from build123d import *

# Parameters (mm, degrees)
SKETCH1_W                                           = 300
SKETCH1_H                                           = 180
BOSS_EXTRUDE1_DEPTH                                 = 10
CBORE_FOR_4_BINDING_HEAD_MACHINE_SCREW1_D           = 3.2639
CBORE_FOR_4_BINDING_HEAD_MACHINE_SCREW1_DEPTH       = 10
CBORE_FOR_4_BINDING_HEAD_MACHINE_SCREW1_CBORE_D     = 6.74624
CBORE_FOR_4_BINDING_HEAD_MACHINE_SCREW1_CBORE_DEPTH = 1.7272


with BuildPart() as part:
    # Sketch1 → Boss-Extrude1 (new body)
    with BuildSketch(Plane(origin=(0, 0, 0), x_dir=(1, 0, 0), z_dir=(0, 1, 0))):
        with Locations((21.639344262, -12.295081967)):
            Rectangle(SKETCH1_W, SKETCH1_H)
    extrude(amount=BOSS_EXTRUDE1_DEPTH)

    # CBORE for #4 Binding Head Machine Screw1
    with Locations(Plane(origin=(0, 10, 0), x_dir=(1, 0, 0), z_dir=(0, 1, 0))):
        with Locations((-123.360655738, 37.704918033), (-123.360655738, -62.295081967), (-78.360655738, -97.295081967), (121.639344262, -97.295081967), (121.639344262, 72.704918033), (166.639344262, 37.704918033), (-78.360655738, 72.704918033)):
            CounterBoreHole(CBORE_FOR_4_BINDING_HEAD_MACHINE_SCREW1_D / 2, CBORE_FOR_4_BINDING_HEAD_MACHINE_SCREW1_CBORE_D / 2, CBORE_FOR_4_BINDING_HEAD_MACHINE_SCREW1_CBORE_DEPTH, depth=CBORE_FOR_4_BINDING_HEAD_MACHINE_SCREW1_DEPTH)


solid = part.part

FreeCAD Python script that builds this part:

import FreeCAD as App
import Part
import Sketcher
from FreeCAD import Vector
Q = App.Units.Quantity

doc = App.newDocument("Part")
body = doc.addObject("PartDesign::Body", "Body")

# Sketch on XZ plane
sketch1 = body.newObject("Sketcher::SketchObject", "Sketch")
sketch1.AttachmentSupport = (doc.getObject("XZ_Plane"), [""])
sketch1.MapMode = "FlatFace"
sketch1.addGeometry([
    Part.LineSegment(Vector(-128, -78, 0), Vector(-128, 102, 0)),
    Part.LineSegment(Vector(-128, 102, 0), Vector(172, 102, 0)),
    Part.LineSegment(Vector(172, 102, 0), Vector(172, -78, 0)),
    Part.LineSegment(Vector(172, -78, 0), Vector(-128, -78, 0)),
], False)
sketch1.addConstraint([
    Sketcher.Constraint("Coincident", 0, 2, 1, 1),
    Sketcher.Constraint("Coincident", 1, 2, 2, 1),
    Sketcher.Constraint("Coincident", 2, 2, 3, 1),
    Sketcher.Constraint("Coincident", 3, 2, 0, 1),
    Sketcher.Constraint("Vertical", 0),
    Sketcher.Constraint("Horizontal", 1),
    Sketcher.Constraint("Vertical", 2),
    Sketcher.Constraint("Horizontal", 3),
    Sketcher.Constraint("DistanceX", 1, 1, 1, 2, Q("300 mm")),
    Sketcher.Constraint("DistanceY", 0, 1, 0, 2, Q("180 mm")),
    Sketcher.Constraint("DistanceY", -1, 1, 0, 2, Q("102.295082 mm")),
    Sketcher.Constraint("DistanceX", 0, 2, -1, 1, Q("128.360656 mm")),
])
pad1 = body.newObject("PartDesign::Pad", "Pad")
pad1.Profile = sketch1
pad1.Length = 10
pad1.Reversed = True

# Sketch on XZ plane
sketch2 = body.newObject("Sketcher::SketchObject", "Sketch001")
sketch2.AttachmentSupport = (doc.getObject("XZ_Plane"), [""])
sketch2.MapMode = "FlatFace"
sketch2.AttachmentOffset = App.Placement(Vector(0, 0, -10), App.Rotation())
sketch2.addGeometry([
    Part.Circle(Vector(-123.4, -37.7, 0), Vector(0, 0, 1), 1.6),  # 0
    Part.Circle(Vector(-123.4, 62.3, 0), Vector(0, 0, 1), 1.6),  # 1
    Part.Circle(Vector(-78.4, 97.3, 0), Vector(0, 0, 1), 1.6),  # 2
    Part.Circle(Vector(121.6, 97.3, 0), Vector(0, 0, 1), 1.6),  # 3
    Part.Circle(Vector(121.6, -72.7, 0), Vector(0, 0, 1), 1.6),  # 4
    Part.Circle(Vector(166.6, -37.7, 0), Vector(0, 0, 1), 1.6),  # 5
    Part.Circle(Vector(-78.4, -72.7, 0), Vector(0, 0, 1), 1.6),  # 6
], False)
sketch2.addConstraint([
    Sketcher.Constraint("Equal", 0, 1),
    Sketcher.Constraint("Equal", 1, 2),
    Sketcher.Constraint("Equal", 2, 3),
    Sketcher.Constraint("Equal", 3, 4),
    Sketcher.Constraint("Equal", 4, 5),
    Sketcher.Constraint("Equal", 5, 6),
    Sketcher.Constraint("Horizontal", 2, 3, 3, 3),
    Sketcher.Constraint("Horizontal", 0, 3, 5, 3),
    Sketcher.Constraint("Horizontal", 4, 3, 6, 3),
    Sketcher.Constraint("Vertical", 0, 3, 1, 3),
    Sketcher.Constraint("Vertical", 3, 3, 4, 3),
    Sketcher.Constraint("Vertical", 2, 3, 6, 3),
    Sketcher.Constraint("DistanceY", 0, 3, 1, 3, Q("100 mm")),
    Sketcher.Constraint("DistanceX", 1, 3, 2, 3, Q("45 mm")),
    Sketcher.Constraint("DistanceY", 1, 3, 2, 3, Q("35 mm")),
    Sketcher.Constraint("DistanceX", 2, 3, 3, 3, Q("200 mm")),
    Sketcher.Constraint("DistanceY", 4, 3, 3, 3, Q("170 mm")),
    Sketcher.Constraint("DistanceX", 4, 3, 5, 3, Q("45 mm")),
    Sketcher.Constraint("Diameter", 0, Q("3.2639 mm")),
    Sketcher.Constraint("DistanceY", 0, 3, -1, 1, Q("37.704918 mm")),
    Sketcher.Constraint("DistanceX", 0, 3, -1, 1, Q("123.360656 mm")),
])
doc.recompute()
hole = body.newObject("PartDesign::Hole", "Hole")
hole.Profile = sketch2
hole.ThreadType = "None"
hole.Diameter = 3.2639
hole.DepthType = "Dimension"
hole.Depth = 10
hole.DrillPoint = "Flat"
hole.HoleCutType = "Counterbore"
hole.HoleCutDiameter = 6.74624
hole.HoleCutDepth = 1.7272
hole.Reversed = True

doc.recompute()
